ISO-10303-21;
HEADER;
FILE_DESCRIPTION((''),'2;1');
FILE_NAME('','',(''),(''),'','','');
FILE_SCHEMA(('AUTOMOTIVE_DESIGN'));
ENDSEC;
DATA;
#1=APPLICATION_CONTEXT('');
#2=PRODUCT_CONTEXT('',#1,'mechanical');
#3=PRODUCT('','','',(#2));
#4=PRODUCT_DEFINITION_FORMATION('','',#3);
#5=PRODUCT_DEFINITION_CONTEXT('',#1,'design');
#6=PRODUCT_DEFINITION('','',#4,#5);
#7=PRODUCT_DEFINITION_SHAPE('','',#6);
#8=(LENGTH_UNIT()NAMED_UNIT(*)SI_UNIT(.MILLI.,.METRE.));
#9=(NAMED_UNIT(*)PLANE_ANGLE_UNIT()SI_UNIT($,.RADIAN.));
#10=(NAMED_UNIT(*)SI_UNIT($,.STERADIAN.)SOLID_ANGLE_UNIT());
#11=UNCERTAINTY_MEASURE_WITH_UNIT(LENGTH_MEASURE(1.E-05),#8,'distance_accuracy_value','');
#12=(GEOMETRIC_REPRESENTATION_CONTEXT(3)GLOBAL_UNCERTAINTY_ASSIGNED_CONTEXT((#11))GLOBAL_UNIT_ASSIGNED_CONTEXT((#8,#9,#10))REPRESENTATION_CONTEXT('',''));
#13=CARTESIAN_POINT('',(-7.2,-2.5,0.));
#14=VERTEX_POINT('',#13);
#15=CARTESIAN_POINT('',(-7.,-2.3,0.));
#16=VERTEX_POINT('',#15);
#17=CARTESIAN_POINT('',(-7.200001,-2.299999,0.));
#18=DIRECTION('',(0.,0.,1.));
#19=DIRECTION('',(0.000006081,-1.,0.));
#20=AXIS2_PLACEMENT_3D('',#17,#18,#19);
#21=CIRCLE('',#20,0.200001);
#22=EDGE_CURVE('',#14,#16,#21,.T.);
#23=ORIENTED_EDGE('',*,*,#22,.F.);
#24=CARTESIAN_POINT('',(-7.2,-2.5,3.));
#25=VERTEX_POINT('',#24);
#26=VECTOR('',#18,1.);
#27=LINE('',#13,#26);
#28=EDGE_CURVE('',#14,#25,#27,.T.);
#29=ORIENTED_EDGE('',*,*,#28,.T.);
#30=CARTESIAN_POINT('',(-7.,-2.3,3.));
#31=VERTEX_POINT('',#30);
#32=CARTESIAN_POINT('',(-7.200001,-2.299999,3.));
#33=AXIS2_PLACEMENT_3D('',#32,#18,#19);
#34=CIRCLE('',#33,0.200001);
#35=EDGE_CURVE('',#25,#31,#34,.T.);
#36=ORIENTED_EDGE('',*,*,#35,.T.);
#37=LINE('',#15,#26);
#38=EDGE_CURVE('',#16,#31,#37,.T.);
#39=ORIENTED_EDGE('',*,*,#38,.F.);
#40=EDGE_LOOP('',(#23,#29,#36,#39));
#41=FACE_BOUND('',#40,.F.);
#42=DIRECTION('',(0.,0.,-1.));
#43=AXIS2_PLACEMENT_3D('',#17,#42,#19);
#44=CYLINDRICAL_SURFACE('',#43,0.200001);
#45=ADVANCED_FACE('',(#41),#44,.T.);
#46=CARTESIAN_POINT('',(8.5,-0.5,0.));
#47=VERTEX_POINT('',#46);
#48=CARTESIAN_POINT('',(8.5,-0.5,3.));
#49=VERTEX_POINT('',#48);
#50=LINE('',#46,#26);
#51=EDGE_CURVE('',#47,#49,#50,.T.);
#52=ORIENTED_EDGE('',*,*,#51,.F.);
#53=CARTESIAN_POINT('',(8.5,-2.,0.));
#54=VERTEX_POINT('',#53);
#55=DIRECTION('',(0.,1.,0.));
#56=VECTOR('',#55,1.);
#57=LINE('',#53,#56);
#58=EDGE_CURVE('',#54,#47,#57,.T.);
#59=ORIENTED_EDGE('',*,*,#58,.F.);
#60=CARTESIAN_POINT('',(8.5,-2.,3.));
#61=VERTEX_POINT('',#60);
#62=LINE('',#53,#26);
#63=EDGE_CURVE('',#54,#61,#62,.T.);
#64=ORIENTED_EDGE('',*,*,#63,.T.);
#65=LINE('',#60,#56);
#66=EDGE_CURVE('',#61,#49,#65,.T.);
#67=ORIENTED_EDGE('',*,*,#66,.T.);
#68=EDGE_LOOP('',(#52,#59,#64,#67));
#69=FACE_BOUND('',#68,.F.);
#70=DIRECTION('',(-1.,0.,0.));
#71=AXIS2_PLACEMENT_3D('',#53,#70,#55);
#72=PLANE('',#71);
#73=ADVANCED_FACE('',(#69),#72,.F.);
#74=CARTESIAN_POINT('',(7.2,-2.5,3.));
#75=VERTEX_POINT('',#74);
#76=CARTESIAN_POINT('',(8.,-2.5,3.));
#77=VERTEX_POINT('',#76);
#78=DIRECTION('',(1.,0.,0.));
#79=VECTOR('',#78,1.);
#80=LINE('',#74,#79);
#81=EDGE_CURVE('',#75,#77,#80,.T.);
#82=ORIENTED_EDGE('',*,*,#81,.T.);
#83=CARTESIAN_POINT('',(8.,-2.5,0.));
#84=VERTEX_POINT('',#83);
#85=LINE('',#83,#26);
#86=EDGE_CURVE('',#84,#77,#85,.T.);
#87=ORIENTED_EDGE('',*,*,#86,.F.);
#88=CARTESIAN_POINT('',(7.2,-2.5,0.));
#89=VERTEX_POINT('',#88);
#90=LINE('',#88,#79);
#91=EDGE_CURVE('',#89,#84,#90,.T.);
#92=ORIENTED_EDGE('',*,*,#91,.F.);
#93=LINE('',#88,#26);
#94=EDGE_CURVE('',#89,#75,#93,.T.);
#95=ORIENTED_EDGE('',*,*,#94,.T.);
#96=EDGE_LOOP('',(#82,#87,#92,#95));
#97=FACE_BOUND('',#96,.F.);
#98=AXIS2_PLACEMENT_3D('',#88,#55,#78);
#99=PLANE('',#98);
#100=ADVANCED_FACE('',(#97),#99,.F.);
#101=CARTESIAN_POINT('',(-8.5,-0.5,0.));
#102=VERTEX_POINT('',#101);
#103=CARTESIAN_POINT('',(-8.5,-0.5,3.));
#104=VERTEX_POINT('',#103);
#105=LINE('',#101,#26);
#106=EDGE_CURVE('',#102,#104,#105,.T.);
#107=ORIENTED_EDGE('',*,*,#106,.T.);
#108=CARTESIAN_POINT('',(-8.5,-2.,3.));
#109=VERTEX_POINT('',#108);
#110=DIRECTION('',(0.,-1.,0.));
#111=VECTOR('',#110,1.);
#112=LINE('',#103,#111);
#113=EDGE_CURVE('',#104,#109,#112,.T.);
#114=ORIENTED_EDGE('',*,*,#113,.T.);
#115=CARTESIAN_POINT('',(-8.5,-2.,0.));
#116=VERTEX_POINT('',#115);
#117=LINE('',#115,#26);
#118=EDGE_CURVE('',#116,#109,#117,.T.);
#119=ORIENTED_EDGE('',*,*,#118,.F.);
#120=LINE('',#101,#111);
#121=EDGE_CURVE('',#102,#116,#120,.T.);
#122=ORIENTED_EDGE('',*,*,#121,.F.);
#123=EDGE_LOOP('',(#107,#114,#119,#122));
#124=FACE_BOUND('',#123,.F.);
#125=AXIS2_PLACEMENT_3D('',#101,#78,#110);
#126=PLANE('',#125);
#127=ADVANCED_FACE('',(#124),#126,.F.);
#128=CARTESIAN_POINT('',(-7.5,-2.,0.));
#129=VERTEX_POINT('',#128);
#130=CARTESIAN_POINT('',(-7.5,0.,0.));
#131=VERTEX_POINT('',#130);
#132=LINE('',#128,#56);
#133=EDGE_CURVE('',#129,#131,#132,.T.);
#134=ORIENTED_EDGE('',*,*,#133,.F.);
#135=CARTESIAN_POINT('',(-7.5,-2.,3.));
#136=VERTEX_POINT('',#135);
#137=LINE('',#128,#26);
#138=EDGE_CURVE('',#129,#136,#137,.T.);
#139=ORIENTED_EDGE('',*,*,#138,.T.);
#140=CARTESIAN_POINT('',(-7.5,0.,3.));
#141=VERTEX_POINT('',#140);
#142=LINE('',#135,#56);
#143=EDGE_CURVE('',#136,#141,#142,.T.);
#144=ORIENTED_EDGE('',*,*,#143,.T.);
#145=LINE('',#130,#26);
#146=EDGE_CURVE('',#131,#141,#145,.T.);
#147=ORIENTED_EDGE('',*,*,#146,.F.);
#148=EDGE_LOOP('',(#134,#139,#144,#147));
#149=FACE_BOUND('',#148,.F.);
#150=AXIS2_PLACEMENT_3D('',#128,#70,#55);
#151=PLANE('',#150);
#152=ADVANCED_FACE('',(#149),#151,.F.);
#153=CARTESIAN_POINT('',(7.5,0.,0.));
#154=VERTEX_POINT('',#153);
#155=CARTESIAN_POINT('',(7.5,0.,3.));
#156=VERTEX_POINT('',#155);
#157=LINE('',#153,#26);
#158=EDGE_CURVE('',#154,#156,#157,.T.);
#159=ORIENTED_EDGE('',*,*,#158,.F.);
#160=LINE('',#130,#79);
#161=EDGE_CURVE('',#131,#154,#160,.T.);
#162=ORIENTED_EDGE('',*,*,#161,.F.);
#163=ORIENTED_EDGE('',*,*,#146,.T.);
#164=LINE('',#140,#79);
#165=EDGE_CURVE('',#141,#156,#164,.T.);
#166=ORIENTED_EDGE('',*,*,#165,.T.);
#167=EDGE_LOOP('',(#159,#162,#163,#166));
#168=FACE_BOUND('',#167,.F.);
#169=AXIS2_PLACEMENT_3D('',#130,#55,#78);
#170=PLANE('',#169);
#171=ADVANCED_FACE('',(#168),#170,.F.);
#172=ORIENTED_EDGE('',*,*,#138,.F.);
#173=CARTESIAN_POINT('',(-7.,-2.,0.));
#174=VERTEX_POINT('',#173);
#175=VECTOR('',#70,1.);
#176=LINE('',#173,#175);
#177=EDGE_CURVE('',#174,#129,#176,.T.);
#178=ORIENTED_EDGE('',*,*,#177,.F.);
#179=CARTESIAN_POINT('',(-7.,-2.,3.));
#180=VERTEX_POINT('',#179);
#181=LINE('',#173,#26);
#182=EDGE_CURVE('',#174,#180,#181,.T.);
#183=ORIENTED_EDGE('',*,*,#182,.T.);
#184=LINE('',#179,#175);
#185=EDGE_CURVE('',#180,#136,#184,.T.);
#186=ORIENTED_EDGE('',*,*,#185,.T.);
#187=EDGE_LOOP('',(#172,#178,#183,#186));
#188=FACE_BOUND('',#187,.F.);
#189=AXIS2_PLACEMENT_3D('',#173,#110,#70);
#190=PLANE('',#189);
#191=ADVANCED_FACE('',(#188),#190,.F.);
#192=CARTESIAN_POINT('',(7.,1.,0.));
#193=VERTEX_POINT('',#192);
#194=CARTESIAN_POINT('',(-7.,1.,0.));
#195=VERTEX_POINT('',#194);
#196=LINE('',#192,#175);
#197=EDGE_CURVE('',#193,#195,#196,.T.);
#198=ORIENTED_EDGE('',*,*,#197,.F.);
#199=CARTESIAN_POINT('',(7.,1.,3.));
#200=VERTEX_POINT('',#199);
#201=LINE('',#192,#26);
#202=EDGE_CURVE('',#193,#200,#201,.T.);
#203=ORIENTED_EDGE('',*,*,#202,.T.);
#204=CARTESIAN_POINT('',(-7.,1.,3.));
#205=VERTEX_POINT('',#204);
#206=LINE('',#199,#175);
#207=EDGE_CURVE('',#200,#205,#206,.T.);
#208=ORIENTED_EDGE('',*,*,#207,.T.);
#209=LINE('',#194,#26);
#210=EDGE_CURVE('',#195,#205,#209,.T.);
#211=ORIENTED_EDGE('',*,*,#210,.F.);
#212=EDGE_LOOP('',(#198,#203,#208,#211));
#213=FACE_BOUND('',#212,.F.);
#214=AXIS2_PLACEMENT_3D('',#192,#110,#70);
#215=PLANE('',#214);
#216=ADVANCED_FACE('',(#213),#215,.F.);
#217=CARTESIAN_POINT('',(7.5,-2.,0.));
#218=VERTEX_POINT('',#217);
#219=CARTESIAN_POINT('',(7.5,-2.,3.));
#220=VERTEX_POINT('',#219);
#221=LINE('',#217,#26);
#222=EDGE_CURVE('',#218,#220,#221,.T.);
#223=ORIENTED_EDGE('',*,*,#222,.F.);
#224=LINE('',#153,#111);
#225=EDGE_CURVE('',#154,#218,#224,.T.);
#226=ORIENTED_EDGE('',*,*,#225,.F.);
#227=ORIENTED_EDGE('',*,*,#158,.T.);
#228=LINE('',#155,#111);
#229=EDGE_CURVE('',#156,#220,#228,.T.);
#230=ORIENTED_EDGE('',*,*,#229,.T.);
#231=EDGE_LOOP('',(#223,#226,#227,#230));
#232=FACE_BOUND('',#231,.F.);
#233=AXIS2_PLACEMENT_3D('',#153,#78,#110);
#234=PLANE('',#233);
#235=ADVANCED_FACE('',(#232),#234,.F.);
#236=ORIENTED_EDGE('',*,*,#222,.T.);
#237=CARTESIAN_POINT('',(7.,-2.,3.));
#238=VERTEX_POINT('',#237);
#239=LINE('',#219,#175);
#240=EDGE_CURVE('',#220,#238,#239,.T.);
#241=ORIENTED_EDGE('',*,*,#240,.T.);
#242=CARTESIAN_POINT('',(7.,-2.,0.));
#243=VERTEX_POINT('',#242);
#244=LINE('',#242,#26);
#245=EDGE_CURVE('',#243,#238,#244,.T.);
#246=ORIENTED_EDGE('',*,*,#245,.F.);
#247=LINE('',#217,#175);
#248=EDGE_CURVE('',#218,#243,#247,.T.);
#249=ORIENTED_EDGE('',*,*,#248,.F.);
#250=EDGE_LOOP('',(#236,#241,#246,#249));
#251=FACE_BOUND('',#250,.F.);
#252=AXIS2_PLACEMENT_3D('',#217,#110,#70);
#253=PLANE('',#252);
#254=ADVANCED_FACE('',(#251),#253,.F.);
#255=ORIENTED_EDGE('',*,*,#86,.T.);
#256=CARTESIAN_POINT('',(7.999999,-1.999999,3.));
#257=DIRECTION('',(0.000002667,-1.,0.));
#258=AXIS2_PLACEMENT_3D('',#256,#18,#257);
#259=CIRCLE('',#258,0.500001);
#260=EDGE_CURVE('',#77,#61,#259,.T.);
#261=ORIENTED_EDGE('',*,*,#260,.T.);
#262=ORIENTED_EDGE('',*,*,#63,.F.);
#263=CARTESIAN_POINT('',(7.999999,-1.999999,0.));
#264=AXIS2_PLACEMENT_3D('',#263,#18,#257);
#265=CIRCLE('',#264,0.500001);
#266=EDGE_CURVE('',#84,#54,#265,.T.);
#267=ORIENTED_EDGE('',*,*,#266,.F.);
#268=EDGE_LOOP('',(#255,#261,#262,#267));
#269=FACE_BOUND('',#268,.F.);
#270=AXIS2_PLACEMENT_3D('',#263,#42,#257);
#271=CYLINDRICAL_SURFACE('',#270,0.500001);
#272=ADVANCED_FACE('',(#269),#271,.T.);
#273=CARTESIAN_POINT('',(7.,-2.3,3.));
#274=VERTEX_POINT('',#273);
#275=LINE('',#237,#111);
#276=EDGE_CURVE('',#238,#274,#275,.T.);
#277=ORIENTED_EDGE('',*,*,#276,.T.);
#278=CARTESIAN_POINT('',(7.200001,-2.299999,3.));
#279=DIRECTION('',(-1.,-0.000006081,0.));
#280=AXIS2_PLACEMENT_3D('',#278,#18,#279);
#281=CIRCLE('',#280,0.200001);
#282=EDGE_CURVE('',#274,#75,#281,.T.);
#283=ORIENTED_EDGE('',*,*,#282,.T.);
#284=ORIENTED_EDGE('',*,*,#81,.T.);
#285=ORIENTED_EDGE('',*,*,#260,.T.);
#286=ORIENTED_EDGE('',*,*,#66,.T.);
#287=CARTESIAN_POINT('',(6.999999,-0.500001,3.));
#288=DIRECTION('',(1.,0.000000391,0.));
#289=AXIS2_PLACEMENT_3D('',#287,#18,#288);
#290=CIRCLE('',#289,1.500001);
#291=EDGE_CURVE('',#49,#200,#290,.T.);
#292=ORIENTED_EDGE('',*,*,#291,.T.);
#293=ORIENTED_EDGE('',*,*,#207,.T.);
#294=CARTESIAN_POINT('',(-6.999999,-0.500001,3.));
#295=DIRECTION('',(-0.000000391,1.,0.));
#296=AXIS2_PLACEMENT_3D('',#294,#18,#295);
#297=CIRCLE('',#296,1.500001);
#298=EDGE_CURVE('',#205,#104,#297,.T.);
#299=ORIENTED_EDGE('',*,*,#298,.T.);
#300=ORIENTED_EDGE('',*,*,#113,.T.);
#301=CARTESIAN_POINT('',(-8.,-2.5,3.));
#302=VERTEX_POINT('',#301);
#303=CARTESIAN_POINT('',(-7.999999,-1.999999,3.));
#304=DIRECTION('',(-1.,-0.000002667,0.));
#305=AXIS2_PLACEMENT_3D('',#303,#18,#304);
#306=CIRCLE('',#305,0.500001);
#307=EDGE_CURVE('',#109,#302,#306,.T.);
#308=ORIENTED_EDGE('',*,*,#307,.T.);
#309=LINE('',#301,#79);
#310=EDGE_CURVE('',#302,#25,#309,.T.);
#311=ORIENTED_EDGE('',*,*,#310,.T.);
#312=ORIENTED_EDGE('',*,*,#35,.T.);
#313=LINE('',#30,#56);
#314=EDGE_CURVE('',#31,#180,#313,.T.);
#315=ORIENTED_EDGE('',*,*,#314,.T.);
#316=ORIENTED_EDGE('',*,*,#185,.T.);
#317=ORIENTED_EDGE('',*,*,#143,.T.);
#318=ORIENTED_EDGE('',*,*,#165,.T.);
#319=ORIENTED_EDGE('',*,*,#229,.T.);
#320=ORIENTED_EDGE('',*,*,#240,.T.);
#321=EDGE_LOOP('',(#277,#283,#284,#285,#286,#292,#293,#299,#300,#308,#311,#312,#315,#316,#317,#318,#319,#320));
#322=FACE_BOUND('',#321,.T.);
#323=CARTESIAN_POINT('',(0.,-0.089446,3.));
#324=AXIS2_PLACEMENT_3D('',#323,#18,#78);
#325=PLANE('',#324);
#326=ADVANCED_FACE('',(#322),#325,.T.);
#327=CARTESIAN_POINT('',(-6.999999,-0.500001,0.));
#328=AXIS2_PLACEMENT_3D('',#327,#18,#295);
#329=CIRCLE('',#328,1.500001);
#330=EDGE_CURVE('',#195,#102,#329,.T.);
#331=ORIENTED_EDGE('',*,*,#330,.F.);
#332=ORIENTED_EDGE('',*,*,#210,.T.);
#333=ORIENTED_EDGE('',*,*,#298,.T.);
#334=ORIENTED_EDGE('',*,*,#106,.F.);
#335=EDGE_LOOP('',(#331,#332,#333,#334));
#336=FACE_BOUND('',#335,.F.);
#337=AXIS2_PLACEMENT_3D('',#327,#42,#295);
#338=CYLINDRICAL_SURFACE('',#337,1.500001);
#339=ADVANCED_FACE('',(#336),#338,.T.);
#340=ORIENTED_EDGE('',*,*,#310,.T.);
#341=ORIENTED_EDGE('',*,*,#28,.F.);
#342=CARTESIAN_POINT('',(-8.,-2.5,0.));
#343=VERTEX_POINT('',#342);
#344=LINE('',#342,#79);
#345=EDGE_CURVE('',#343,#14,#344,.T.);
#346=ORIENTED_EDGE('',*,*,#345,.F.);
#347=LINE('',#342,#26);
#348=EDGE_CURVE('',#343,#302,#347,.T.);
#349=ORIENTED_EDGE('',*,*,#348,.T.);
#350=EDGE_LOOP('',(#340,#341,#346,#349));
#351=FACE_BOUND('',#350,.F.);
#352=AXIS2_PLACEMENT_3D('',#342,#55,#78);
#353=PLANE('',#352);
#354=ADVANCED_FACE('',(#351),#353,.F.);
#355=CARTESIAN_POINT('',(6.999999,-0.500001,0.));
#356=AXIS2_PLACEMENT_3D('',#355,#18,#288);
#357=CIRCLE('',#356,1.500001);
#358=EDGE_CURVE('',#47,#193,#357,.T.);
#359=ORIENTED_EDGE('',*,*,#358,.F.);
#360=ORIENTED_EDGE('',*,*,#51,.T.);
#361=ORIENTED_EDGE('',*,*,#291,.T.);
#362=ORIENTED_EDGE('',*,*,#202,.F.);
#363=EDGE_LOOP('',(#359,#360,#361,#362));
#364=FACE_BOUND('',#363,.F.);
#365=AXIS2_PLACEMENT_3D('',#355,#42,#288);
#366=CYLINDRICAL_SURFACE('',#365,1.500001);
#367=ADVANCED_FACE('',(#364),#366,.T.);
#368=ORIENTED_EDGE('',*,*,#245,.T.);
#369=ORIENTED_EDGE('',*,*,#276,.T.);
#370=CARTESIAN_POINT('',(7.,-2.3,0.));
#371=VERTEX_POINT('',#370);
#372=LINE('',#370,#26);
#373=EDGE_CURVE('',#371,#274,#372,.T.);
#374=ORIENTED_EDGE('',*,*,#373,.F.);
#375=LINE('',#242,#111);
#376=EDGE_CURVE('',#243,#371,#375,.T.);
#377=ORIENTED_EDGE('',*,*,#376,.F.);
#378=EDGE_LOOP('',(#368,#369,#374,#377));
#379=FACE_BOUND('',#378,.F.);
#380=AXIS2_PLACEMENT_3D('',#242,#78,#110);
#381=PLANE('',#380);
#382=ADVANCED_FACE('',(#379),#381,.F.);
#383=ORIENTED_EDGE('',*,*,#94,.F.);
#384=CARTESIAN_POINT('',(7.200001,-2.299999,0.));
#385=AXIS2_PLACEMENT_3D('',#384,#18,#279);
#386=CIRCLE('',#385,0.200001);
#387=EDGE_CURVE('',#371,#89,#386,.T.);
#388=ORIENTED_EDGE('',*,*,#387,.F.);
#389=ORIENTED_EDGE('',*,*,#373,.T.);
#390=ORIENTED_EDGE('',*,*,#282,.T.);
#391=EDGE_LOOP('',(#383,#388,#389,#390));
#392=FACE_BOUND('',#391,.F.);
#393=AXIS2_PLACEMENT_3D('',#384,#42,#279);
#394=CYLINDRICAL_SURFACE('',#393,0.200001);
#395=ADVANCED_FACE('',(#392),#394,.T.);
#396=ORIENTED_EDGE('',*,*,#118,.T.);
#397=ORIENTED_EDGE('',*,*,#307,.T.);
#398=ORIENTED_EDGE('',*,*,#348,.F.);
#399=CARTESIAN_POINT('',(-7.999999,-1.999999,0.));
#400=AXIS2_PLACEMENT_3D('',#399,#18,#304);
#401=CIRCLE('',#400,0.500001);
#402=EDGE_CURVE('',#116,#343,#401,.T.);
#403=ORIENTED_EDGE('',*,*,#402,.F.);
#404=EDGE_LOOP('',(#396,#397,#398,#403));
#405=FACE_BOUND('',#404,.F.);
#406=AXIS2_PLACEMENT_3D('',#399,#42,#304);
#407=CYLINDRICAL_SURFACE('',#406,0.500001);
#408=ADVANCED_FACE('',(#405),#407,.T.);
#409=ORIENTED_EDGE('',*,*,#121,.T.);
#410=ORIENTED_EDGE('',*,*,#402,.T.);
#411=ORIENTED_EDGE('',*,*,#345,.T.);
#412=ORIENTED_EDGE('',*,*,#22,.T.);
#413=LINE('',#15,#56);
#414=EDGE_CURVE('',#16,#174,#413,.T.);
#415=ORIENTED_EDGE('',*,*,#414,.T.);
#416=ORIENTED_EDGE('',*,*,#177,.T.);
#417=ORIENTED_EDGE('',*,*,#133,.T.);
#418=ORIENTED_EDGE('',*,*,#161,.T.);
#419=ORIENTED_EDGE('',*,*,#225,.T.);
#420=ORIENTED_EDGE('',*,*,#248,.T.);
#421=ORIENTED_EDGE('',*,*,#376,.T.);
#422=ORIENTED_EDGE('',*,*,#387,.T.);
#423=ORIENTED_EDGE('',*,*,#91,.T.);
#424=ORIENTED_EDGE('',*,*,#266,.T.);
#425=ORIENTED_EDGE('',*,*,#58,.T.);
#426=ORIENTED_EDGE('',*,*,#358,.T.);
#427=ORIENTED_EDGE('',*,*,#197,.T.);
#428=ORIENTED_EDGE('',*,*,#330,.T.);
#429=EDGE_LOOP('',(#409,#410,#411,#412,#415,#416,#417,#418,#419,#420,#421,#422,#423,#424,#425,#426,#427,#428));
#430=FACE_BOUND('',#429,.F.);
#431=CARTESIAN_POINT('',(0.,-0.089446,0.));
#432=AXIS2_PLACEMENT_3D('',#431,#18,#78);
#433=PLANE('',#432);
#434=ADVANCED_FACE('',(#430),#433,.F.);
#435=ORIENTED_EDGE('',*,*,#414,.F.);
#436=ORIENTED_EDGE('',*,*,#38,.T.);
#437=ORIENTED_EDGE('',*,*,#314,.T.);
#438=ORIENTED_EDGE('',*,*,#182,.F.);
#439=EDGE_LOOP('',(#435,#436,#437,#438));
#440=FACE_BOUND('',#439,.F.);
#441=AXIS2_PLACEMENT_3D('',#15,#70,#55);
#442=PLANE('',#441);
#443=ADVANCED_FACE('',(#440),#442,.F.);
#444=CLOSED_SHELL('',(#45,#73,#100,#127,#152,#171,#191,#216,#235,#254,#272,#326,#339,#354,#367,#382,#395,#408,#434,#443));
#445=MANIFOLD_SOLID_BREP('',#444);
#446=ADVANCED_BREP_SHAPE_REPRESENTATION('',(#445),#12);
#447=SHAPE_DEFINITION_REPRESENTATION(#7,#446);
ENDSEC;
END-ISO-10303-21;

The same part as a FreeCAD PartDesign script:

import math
import FreeCAD as App
import Part
import Sketcher
from FreeCAD import Vector

doc = App.newDocument("Part")
body = doc.addObject("PartDesign::Body", "Body")

# Sketch on XY plane
sketch1 = body.newObject("Sketcher::SketchObject", "Sketch")
sketch1.AttachmentSupport = (doc.getObject("XY_Plane"), [""])
sketch1.MapMode = "FlatFace"
sketch1.addGeometry(Part.LineSegment(Vector(-7.5, 0, 0), Vector(7.5, 0, 0)), False)
sketch1.addGeometry(Part.LineSegment(Vector(7.5, 0, 0), Vector(7.5, -2, 0)), False)
sketch1.addGeometry(Part.LineSegment(Vector(7.5, -2, 0), Vector(7, -2, 0)), False)
sketch1.addGeometry(Part.LineSegment(Vector(7, -2, 0), Vector(7, -2.3, 0)), False)
sketch1.addGeometry(Part.ArcOfCircle(Part.Circle(Vector(7.200001, -2.299999, 0), Vector(0, 0, 1), 0.200001), math.radians(-179.999652), math.radians(-90.000348)), False)
sketch1.addGeometry(Part.LineSegment(Vector(7.2, -2.5, 0), Vector(8, -2.5, 0)), False)
sketch1.addGeometry(Part.ArcOfCircle(Part.Circle(Vector(7.999999, -1.999999, 0), Vector(0, 0, 1), 0.500001), math.radians(-89.999847), math.radians(-0.000153)), False)
sketch1.addGeometry(Part.LineSegment(Vector(8.5, -2, 0), Vector(8.5, -0.5, 0)), False)
sketch1.addGeometry(Part.ArcOfCircle(Part.Circle(Vector(6.999999, -0.500001, 0), Vector(0, 0, 1), 1.500001), math.radians(0.000022), math.radians(89.999978)), False)
sketch1.addGeometry(Part.LineSegment(Vector(7, 1, 0), Vector(-7, 1, 0)), False)
sketch1.addGeometry(Part.ArcOfCircle(Part.Circle(Vector(-6.999999, -0.500001, 0), Vector(0, 0, 1), 1.500001), math.radians(90.000022), math.radians(179.999978)), False)
sketch1.addGeometry(Part.LineSegment(Vector(-8.5, -0.5, 0), Vector(-8.5, -2, 0)), False)
sketch1.addGeometry(Part.ArcOfCircle(Part.Circle(Vector(-7.999999, -1.999999, 0), Vector(0, 0, 1), 0.500001), math.radians(-179.999847), math.radians(-90.000153)), False)
sketch1.addGeometry(Part.LineSegment(Vector(-8, -2.5, 0), Vector(-7.2, -2.5, 0)), False)
sketch1.addGeometry(Part.ArcOfCircle(Part.Circle(Vector(-7.200001, -2.299999, 0), Vector(0, 0, 1), 0.200001), math.radians(-89.999652), math.radians(-0.000348)), False)
sketch1.addGeometry(Part.LineSegment(Vector(-7, -2.3, 0), Vector(-7, -2, 0)), False)
sketch1.addGeometry(Part.LineSegment(Vector(-7, -2, 0), Vector(-7.5, -2, 0)), False)
sketch1.addGeometry(Part.LineSegment(Vector(-7.5, -2, 0), Vector(-7.5, 0, 0)), False)
sketch1.addConstraint(Sketcher.Constraint("Coincident", 0, 2, 1, 1))
sketch1.addConstraint(Sketcher.Constraint("Coincident", 1, 2, 2, 1))
sketch1.addConstraint(Sketcher.Constraint("Coincident", 2, 2, 3, 1))
sketch1.addConstraint(Sketcher.Constraint("Coincident", 3, 2, 4, 1))
sketch1.addConstraint(Sketcher.Constraint("Coincident", 4, 2, 5, 1))
sketch1.addConstraint(Sketcher.Constraint("Coincident", 5, 2, 6, 1))
sketch1.addConstraint(Sketcher.Constraint("Coincident", 6, 2, 7, 1))
sketch1.addConstraint(Sketcher.Constraint("Tangent", 7, 2, 8, 1))
sketch1.addConstraint(Sketcher.Constraint("Tangent", 8, 2, 9, 1))
sketch1.addConstraint(Sketcher.Constraint("Tangent", 9, 2, 10, 1))
sketch1.addConstraint(Sketcher.Constraint("Tangent", 10, 2, 11, 1))
sketch1.addConstraint(Sketcher.Constraint("Coincident", 11, 2, 12, 1))
sketch1.addConstraint(Sketcher.Constraint("Coincident", 12, 2, 13, 1))
sketch1.addConstraint(Sketcher.Constraint("Coincident", 13, 2, 14, 1))
sketch1.addConstraint(Sketcher.Constraint("Coincident", 14, 2, 15, 1))
sketch1.addConstraint(Sketcher.Constraint("Coincident", 15, 2, 16, 1))
sketch1.addConstraint(Sketcher.Constraint("Coincident", 16, 2, 17, 1))
sketch1.addConstraint(Sketcher.Constraint("Coincident", 17, 2, 0, 1))
sketch1.addConstraint(Sketcher.Constraint("Horizontal", 0))
sketch1.addConstraint(Sketcher.Constraint("Vertical", 1))
sketch1.addConstraint(Sketcher.Constraint("Horizontal", 2))
sketch1.addConstraint(Sketcher.Constraint("Vertical", 3))
sketch1.addConstraint(Sketcher.Constraint("Horizontal", 5))
sketch1.addConstraint(Sketcher.Constraint("Vertical", 7))
sketch1.addConstraint(Sketcher.Constraint("Horizontal", 9))
sketch1.addConstraint(Sketcher.Constraint("Vertical", 11))
sketch1.addConstraint(Sketcher.Constraint("Horizontal", 13))
sketch1.addConstraint(Sketcher.Constraint("Vertical", 15))
sketch1.addConstraint(Sketcher.Constraint("Horizontal", 16))
sketch1.addConstraint(Sketcher.Constraint("Vertical", 17))
sketch1.addConstraint(Sketcher.Constraint("Equal", 8, 10))
sketch1.addConstraint(Sketcher.Constraint("Equal", 6, 12))
sketch1.addConstraint(Sketcher.Constraint("Equal", 4, 14))
sketch1.addConstraint(Sketcher.Constraint("Symmetric", 0, 2, 17, 2, -1, 1))
sketch1.addConstraint(Sketcher.Constraint("Symmetric", 6, 3, 12, 3, -2))
sketch1.addConstraint(Sketcher.Constraint("Symmetric", 3, 2, 14, 2, -2))
sketch1.addConstraint(Sketcher.Constraint("Horizontal", 12, 3, 1, 2))
sketch1.addConstraint(Sketcher.Constraint("Horizontal", 14, 3, 3, 2))
sketch1.addConstraint(Sketcher.Constraint("Horizontal", 2, 2, 6, 2))
sketch1.addConstraint(Sketcher.Constraint("Horizontal", 6, 2, 11, 2))
sketch1.addConstraint(Sketcher.Constraint("Horizontal", 11, 2, 15, 2))
sketch1.addConstraint(Sketcher.Constraint("Vertical", 8, 3, 2, 2))
sketch1.addConstraint(Sketcher.Constraint("Vertical", 6, 3, 5, 2))
sketch1.addConstraint(Sketcher.Constraint("Vertical", 14, 3, 13, 2))
sketch1.addConstraint(Sketcher.Constraint("Equal", 5, 13))
sketch1.addConstraint(Sketcher.Constraint("Radius", 4, 0.200001))
sketch1.addConstraint(Sketcher.Constraint("Radius", 6, 0.500001))
sketch1.addConstraint(Sketcher.Constraint("Radius", 8, 1.500001))
sketch1.addConstraint(Sketcher.Constraint("DistanceX", 0, 1, 0, 2, 15.0))
sketch1.addConstraint(Sketcher.Constraint("DistanceX", 9, 2, 9, 1, 14.0))
sketch1.addConstraint(Sketcher.Constraint("DistanceY", 1, 2, 1, 1, 2.0))
sketch1.addConstraint(Sketcher.Constraint("DistanceX", 5, 1, 5, 2, 0.8))
sketch1.addConstraint(Sketcher.Constraint("DistanceY", 7, 1, 7, 2, 1.5))
pad1 = body.newObject("PartDesign::Pad", "Pad")
pad1.Profile = sketch1
pad1.Length = 3

doc.recompute()
